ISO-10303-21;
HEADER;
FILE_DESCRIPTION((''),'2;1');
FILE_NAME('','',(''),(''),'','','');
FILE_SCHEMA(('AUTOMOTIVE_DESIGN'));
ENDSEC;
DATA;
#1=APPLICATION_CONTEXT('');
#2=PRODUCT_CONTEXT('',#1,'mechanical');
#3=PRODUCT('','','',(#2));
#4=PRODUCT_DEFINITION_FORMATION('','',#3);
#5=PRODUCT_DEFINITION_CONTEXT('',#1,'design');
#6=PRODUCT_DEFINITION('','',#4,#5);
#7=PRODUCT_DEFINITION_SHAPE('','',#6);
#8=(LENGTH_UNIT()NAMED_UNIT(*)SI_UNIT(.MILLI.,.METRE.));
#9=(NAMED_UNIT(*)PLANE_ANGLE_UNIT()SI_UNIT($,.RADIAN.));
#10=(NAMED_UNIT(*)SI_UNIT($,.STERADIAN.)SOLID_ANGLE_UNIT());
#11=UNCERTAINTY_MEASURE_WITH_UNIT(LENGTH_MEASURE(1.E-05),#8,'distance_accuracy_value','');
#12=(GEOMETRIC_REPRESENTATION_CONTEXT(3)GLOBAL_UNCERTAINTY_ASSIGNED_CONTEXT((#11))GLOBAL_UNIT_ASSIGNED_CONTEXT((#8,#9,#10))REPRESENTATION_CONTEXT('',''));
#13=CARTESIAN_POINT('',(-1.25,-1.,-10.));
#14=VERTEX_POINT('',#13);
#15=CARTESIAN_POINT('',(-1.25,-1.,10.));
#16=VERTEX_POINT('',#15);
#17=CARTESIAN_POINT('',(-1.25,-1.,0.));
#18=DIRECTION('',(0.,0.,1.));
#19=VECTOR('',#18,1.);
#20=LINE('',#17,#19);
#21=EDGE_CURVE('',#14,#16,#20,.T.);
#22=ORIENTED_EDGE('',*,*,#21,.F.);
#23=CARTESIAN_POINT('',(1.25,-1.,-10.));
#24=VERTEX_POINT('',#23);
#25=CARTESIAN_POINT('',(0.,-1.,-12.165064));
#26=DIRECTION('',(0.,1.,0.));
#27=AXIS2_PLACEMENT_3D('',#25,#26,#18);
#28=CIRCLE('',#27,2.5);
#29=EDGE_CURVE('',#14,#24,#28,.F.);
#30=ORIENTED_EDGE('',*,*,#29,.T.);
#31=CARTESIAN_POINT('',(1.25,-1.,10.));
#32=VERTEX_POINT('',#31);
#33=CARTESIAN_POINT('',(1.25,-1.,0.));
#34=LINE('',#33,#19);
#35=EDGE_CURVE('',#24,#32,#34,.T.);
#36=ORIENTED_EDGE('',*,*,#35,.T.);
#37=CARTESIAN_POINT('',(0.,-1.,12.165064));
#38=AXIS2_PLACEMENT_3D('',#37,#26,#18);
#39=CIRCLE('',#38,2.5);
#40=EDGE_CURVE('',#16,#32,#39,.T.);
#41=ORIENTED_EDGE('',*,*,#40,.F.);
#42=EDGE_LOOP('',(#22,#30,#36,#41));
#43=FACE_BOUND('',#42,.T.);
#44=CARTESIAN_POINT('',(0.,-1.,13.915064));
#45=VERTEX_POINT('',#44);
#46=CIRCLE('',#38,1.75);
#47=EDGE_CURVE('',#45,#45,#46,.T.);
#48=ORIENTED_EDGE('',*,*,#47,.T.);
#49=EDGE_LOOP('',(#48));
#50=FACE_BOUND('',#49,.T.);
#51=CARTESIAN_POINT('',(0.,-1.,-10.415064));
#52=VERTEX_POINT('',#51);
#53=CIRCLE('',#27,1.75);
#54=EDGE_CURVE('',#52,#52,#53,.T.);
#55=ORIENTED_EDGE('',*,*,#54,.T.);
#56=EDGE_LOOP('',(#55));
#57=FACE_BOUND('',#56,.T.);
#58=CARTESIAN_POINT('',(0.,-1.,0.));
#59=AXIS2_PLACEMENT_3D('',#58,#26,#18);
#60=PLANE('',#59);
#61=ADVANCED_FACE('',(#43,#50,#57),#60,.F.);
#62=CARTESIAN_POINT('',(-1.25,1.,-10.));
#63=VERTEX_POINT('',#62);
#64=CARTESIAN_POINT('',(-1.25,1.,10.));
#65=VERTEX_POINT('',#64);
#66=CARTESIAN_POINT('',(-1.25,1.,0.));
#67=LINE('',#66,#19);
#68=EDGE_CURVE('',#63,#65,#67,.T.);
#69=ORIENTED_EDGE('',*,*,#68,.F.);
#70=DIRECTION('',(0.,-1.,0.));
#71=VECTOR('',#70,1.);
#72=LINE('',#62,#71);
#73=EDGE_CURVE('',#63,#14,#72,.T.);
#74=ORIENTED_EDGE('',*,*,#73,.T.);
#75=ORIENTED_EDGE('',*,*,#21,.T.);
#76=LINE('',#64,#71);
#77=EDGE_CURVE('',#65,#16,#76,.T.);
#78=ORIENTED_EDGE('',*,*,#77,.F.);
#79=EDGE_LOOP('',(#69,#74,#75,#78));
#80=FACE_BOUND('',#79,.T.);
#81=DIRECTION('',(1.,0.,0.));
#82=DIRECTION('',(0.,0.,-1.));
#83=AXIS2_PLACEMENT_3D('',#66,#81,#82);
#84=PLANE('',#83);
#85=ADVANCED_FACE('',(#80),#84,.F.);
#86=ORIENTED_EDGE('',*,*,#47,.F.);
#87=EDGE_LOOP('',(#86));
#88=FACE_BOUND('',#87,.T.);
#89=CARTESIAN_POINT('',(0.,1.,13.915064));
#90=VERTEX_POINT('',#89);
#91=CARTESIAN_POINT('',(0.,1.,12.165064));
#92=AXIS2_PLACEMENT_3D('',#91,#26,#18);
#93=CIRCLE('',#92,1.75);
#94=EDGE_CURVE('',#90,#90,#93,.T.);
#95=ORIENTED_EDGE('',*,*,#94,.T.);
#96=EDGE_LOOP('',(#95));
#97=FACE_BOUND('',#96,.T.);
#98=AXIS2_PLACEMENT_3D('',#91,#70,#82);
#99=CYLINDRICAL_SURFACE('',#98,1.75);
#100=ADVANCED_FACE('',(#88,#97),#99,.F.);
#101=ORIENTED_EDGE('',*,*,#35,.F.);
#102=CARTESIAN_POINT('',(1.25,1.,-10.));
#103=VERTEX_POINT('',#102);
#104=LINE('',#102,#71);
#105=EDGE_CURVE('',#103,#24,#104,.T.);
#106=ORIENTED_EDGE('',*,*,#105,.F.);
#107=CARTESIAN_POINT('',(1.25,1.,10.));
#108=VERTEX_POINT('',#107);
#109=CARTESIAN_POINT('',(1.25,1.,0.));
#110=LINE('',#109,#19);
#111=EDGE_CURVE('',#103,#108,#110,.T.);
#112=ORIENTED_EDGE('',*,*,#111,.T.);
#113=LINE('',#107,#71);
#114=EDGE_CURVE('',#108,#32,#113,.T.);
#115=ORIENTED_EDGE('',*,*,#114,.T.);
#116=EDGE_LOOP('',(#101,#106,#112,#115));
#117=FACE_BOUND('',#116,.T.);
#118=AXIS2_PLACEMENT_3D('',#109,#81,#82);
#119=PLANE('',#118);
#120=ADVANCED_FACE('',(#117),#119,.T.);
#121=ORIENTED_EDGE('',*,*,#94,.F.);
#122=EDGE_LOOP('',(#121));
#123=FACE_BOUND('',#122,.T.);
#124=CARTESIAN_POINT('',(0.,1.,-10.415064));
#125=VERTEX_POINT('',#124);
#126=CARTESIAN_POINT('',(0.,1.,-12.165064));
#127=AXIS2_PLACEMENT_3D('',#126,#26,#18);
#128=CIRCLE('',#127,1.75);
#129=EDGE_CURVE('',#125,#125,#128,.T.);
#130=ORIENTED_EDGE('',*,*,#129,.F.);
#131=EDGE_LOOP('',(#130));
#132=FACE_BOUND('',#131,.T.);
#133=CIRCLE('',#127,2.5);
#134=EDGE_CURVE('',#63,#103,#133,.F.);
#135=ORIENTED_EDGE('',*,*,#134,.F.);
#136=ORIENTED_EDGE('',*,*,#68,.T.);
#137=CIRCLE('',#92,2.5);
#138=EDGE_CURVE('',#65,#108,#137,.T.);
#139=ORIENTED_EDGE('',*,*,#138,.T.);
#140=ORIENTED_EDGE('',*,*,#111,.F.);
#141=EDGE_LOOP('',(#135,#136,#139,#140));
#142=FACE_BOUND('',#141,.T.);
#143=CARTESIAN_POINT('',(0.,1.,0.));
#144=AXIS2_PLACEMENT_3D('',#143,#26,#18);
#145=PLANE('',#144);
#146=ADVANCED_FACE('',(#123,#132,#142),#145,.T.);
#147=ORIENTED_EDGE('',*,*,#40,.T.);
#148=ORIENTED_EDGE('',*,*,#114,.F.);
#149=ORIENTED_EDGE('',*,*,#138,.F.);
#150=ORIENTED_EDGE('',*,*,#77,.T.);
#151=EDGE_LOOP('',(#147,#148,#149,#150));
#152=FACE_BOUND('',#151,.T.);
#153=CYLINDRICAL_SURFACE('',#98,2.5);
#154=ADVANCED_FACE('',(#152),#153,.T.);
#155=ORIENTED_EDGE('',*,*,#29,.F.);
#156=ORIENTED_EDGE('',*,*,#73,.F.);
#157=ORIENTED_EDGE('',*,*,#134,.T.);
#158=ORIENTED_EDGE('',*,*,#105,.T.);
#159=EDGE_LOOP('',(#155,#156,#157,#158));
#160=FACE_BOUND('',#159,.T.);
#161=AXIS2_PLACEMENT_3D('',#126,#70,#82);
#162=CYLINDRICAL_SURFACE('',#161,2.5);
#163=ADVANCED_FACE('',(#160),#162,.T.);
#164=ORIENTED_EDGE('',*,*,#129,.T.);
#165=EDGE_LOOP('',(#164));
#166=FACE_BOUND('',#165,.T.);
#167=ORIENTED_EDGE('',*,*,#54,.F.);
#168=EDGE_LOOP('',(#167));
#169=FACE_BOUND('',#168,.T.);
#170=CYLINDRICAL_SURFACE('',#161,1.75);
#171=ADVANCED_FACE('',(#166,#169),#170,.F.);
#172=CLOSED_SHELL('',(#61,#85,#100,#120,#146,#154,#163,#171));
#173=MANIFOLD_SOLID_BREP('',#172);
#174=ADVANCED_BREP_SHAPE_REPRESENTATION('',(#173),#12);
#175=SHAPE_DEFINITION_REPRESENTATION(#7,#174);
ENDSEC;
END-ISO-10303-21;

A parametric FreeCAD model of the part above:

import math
import FreeCAD as App
import Part
import Sketcher

doc = App.newDocument("Part")
params = doc.addObject("Spreadsheet::Sheet", "Params")
for row, (alias, value) in enumerate([
    ("sketch1_diameter", "3.5 mm"),
    ("sketch1_radius", "2.5 mm"),
    ("sketch1_height", "20 mm"),
    ("pad1_length", "2 mm"),
], start=1):
    params.set(f"A{row}", alias)
    params.set(f"B{row}", "=" + value)
    params.setAlias(f"B{row}", alias)

body = doc.addObject("PartDesign::Body", "Body")

sketch1 = body.newObject("Sketcher::SketchObject", "Sketch")
sketch1.AttachmentSupport = (doc.getObject("XZ_Plane"), [""])
sketch1.MapMode = "FlatFace"
sketch1.addGeometry(Part.LineSegment(App.Vector(-1.25, -10, 0), App.Vector(-1.25, 10, 0)), False)
sketch1.addGeometry(Part.ArcOfCircle(Part.Circle(App.Vector(0, 12.165064, 0), App.Vector(0, 0, 1), 2.5), math.radians(-60), math.radians(240)), False)
sketch1.addGeometry(Part.LineSegment(App.Vector(1.25, 10, 0), App.Vector(1.25, -10, 0)), False)
sketch1.addGeometry(Part.ArcOfCircle(Part.Circle(App.Vector(0, -12.165064, 0), App.Vector(0, 0, 1), 2.5), math.radians(120), math.radians(420)), False)
sketch1.addGeometry(Part.Circle(App.Vector(0, 12.165064, 0), App.Vector(0, 0, 1), 1.75), False)
sketch1.addGeometry(Part.Circle(App.Vector(0, -12.165064, 0), App.Vector(0, 0, 1), 1.75), False)
sketch1.addConstraint(Sketcher.Constraint("Coincident", 0, 2, 1, 2))
sketch1.addConstraint(Sketcher.Constraint("Coincident", 1, 1, 2, 1))
sketch1.addConstraint(Sketcher.Constraint("Coincident", 2, 2, 3, 2))
sketch1.addConstraint(Sketcher.Constraint("Coincident", 3, 1, 0, 1))
sketch1.addConstraint(Sketcher.Constraint("Vertical", 0))
sketch1.addConstraint(Sketcher.Constraint("Vertical", 2))
sketch1.addConstraint(Sketcher.Constraint("Coincident", 4, 3, 1, 3))
sketch1.addConstraint(Sketcher.Constraint("Coincident", 5, 3, 3, 3))
sketch1.addConstraint(Sketcher.Constraint("Equal", 1, 3))
sketch1.addConstraint(Sketcher.Constraint("Equal", 4, 5))
sketch1.addConstraint(Sketcher.Constraint("Symmetric", 1, 3, 3, 3, -1, 1))
sketch1.addConstraint(Sketcher.Constraint("Symmetric", 0, 2, 1, 1, -2))
sketch1.addConstraint(Sketcher.Constraint("Diameter", 4, 3.5))
sketch1.addConstraint(Sketcher.Constraint("Radius", 1, 2.5))
sketch1.addConstraint(Sketcher.Constraint("DistanceY", 0, 1, 0, 2, 20.0))
sketch1.addConstraint(Sketcher.Constraint("DistanceX", 0, 2, 1, 1, 2.5))
sketch1.setExpression("Constraints[12]", "Params.sketch1_diameter")
sketch1.setExpression("Constraints[13]", "Params.sketch1_radius")
sketch1.setExpression("Constraints[14]", "Params.sketch1_height")
pad1 = body.newObject("PartDesign::Pad", "Pad")
pad1.Profile = sketch1
pad1.setExpression("Length", "Params.pad1_length")
pad1.Midplane = True

doc.recompute()
